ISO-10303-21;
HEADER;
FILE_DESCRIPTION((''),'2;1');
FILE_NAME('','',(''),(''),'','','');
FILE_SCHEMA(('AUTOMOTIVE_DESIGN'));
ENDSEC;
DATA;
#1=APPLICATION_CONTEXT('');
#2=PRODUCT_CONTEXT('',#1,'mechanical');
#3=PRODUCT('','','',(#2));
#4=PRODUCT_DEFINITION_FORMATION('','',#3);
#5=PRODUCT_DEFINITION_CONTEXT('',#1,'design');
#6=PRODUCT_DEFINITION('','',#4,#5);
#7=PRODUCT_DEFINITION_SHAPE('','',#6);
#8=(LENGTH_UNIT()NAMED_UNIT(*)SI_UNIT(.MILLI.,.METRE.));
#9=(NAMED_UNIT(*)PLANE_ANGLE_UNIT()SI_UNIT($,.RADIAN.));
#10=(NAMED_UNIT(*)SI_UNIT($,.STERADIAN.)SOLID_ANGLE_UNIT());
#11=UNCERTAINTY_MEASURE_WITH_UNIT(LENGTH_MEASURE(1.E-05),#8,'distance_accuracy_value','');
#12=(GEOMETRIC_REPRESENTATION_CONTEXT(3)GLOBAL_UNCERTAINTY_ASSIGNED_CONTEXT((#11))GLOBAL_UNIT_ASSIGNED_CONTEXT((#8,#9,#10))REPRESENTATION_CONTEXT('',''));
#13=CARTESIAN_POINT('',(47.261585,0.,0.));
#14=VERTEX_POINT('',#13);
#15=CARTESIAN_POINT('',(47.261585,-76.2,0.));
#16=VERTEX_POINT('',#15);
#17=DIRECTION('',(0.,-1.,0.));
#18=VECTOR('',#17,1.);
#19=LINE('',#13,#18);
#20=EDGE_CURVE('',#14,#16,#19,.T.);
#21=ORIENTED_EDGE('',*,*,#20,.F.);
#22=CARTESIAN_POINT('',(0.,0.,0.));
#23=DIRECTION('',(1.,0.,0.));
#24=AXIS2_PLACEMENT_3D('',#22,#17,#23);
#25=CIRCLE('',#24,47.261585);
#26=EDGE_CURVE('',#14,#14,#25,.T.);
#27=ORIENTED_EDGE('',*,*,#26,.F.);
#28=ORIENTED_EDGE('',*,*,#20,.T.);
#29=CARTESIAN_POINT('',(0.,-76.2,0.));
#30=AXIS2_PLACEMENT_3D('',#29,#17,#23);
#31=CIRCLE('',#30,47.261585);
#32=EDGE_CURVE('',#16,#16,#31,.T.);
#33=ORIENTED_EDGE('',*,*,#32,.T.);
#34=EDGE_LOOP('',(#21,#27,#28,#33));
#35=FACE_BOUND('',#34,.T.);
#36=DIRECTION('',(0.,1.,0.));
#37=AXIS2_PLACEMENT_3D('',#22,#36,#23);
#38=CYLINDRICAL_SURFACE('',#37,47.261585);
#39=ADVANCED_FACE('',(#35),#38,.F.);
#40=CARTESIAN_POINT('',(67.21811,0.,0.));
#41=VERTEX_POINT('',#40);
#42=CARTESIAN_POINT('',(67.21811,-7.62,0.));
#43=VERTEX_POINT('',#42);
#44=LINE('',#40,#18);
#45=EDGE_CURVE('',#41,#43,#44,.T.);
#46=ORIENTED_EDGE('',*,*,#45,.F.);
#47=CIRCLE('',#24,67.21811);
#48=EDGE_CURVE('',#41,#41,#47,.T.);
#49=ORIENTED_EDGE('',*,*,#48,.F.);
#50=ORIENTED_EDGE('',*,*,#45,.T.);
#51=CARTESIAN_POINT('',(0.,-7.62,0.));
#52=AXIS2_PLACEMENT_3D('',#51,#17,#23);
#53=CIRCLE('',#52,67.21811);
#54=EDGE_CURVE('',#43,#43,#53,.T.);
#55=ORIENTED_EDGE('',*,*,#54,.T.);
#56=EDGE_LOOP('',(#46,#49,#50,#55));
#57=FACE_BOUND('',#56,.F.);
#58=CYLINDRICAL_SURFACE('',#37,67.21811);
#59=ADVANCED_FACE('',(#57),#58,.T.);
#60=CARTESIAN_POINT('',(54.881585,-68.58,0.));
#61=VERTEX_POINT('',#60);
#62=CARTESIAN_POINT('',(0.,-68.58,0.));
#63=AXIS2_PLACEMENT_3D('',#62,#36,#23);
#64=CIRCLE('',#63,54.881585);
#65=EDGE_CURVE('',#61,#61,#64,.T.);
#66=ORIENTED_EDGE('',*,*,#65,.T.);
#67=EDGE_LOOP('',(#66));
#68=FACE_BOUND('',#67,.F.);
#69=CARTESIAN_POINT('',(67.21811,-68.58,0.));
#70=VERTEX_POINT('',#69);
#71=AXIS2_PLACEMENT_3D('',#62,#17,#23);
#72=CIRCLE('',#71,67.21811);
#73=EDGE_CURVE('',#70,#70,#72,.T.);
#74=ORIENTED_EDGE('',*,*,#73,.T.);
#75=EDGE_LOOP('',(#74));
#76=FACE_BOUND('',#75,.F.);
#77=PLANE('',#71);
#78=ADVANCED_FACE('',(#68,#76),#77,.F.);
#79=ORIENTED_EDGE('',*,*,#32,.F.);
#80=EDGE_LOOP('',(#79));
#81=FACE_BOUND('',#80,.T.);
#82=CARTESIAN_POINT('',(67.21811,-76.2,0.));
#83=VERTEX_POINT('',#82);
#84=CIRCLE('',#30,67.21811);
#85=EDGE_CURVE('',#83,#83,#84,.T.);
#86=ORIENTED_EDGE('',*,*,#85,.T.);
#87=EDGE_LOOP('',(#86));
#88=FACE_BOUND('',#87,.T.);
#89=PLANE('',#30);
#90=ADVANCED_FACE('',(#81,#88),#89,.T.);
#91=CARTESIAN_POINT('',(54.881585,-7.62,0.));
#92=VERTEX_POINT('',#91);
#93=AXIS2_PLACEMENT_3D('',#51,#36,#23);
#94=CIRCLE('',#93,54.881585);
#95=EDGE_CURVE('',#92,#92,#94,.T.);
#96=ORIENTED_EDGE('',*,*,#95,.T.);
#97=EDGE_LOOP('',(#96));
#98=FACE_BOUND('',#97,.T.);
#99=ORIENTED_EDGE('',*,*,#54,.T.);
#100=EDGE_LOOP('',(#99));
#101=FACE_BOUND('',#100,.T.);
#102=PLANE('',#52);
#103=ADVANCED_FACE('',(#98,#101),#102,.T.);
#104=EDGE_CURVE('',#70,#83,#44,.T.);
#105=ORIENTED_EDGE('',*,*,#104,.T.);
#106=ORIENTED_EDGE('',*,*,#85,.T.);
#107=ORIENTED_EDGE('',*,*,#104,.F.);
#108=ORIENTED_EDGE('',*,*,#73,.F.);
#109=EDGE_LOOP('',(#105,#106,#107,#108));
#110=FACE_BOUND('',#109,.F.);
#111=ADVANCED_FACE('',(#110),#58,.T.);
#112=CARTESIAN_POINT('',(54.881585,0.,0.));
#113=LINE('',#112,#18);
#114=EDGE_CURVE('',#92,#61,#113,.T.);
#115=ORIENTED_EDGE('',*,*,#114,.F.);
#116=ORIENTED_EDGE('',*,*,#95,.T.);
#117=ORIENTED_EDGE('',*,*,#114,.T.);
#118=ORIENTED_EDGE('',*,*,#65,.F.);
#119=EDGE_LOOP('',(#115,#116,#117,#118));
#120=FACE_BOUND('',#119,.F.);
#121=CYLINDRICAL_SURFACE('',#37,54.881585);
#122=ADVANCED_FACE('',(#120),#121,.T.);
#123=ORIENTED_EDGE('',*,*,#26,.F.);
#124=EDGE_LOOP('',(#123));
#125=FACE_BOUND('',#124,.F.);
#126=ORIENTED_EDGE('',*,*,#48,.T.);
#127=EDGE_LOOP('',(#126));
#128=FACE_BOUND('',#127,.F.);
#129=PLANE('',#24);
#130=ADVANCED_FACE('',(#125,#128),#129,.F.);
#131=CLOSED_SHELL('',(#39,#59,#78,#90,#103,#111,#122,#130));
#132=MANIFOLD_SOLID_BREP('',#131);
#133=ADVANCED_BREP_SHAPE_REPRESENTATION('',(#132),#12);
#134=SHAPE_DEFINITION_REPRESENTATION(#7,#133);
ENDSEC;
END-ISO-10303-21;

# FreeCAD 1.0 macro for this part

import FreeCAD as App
import Part
import Sketcher
Q = App.Units.Quantity


def faces_at(feature, points):
    """Names of the faces that lie closest to the given points."""
    faces = feature.Shape.Faces
    near = lambda p: min(range(len(faces)), key=lambda i: faces[i].distToShape(Part.Vertex(*p))[0])
    return sorted({f"Face{near(p) + 1}" for p in points})

doc = App.newDocument("Part")
params = doc.addObject("Spreadsheet::Sheet", "Params")
for row, (alias, value) in enumerate([
    ("pad1_length", "3 in"),
    ("thickness_wall", "0.3 in"),
], start=1):
    params.set(f"A{row}", alias)
    params.set(f"B{row}", "=" + value)
    params.setAlias(f"B{row}", alias)

body = doc.addObject("PartDesign::Body", "Body")

# Sketch on XZ plane
sketch1 = body.newObject("Sketcher::SketchObject", "Sketch")
sketch1.AttachmentSupport = (doc.getObject("XZ_Plane"), [""])
sketch1.MapMode = "FlatFace"
sketch1.addGeometry(Part.Circle(App.Vector(0, 0, 0), App.Vector(0, 0, 1), 67), False)
sketch1.addGeometry(Part.Circle(App.Vector(0, 0, 0), App.Vector(0, 0, 1), 47), False)
sketch1.addConstraint(Sketcher.Constraint("Coincident", 0, 3, -1, 1))
sketch1.addConstraint(Sketcher.Constraint("Coincident", 1, 3, -1, 1))
sketch1.addConstraint(Sketcher.Constraint("Diameter", 0, Q("134.43622 mm")))
sketch1.addConstraint(Sketcher.Constraint("Diameter", 1, Q("94.52317 mm")))
pad1 = body.newObject("PartDesign::Pad", "Pad")
pad1.Profile = sketch1
pad1.setExpression("Length", "Params.pad1_length")
doc.recompute()

thickness = body.newObject("PartDesign::Thickness", "Thickness")
thickness.Base = (pad1, faces_at(pad1, [(-67.218, -38.1, 0)]))
thickness.setExpression("Value", "Params.thickness_wall")
thickness.Reversed = True
thickness.Join = "Arc"

doc.recompute()
